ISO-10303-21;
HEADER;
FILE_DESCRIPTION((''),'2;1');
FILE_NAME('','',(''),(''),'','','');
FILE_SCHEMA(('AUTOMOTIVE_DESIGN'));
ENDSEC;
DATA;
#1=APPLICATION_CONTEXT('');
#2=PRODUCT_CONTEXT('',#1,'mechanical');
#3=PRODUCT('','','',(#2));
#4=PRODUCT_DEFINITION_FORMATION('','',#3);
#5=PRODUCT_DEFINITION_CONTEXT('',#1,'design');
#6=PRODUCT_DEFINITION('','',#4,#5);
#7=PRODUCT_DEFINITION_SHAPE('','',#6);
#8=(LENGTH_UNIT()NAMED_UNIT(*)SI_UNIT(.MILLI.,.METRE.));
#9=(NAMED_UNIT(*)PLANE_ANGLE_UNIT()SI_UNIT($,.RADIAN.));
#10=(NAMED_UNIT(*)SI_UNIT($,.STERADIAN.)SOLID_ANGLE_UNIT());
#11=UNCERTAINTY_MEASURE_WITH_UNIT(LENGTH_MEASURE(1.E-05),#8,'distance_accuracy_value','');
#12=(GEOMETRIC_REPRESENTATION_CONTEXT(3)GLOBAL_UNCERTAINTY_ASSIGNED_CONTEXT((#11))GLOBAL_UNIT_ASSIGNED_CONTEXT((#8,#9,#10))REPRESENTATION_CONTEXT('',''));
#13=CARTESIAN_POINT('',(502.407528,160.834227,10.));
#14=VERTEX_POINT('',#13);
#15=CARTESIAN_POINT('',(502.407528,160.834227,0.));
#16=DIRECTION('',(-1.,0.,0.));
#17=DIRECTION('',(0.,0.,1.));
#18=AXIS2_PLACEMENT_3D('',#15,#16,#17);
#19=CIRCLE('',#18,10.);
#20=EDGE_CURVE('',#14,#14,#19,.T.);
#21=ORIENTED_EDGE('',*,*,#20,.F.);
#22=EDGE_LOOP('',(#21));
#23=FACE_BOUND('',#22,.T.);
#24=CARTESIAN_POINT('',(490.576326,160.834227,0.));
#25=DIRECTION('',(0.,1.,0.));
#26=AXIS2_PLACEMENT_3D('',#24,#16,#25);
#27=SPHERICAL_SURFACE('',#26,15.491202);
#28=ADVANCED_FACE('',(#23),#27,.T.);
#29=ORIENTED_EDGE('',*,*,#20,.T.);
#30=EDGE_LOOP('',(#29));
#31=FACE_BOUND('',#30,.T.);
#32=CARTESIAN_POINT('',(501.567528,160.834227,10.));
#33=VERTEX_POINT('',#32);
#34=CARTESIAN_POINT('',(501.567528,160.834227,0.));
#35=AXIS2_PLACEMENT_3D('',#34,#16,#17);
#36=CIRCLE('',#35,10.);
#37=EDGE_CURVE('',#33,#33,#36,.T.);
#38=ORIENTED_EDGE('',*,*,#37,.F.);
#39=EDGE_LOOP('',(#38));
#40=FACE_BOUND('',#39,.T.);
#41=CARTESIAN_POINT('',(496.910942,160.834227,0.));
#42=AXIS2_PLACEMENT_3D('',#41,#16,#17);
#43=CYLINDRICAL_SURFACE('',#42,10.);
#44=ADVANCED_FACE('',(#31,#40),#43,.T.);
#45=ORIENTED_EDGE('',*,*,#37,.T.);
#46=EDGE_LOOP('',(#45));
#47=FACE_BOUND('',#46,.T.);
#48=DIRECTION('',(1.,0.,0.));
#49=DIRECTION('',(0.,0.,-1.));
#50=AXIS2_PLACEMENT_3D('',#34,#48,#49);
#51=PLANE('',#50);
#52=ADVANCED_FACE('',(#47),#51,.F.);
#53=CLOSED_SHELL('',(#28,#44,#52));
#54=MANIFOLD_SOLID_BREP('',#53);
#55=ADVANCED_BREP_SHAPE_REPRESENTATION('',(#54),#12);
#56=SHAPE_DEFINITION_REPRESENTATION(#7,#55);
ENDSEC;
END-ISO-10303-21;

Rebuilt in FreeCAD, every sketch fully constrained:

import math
import FreeCAD as App
import Part
import Sketcher
from FreeCAD import Vector
Q = App.Units.Quantity

doc = App.newDocument("Part")
params = doc.addObject("Spreadsheet::Sheet", "Params")
for row, (alias, value) in enumerate([
    ("sketch1_height", "10 mm"),
    ("sketch1_width", "4.5 mm"),
    ("sketch1_width2", "0.84 mm"),
    ("revolution_angle", "360 deg"),
], start=1):
    params.set(f"A{row}", alias)
    params.set(f"B{row}", "=" + value)
    params.setAlias(f"B{row}", alias)

body = doc.addObject("PartDesign::Body", "Body")

sketch1 = body.newObject("Sketcher::SketchObject", "Sketch")
sketch1.AttachmentSupport = (doc.getObject("XY_Plane"), [""])
sketch1.MapMode = "FlatFace"
sketch1.addGeometry([
    Part.LineSegment(Vector(501.567528, 170.834227, 0), Vector(501.567528, 160.834227, 0)),
    Part.LineSegment(Vector(501.567528, 160.834227, 0), Vector(506.067528, 160.834227, 0)),
    Part.ArcOfCircle(Part.Circle(Vector(490.576326, 160.834227, 0), Vector(0, 0, 1), 15.491202), math.radians(0), math.radians(40.205252)),
    Part.LineSegment(Vector(502.407528, 170.834227, 0), Vector(501.567528, 170.834227, 0)),
], False)
sketch1.addGeometry(Part.LineSegment(Vector(490.576326, 160.834227, 0), Vector(506.067528, 160.834227, 0)), True)
sketch1.addConstraint([
    Sketcher.Constraint("Coincident", 0, 2, 1, 1),
    Sketcher.Constraint("Coincident", 1, 2, 2, 1),
    Sketcher.Constraint("Coincident", 2, 2, 3, 1),
    Sketcher.Constraint("Coincident", 3, 2, 0, 1),
    Sketcher.Constraint("Vertical", 0),
    Sketcher.Constraint("Horizontal", 1),
    Sketcher.Constraint("Horizontal", 3),
    Sketcher.Constraint("Horizontal", 4),
    Sketcher.Constraint("Coincident", 4, 1, 2, 3),
    Sketcher.Constraint("Coincident", 4, 2, 1, 2),
    Sketcher.Constraint("DistanceY", 0, 2, 0, 1, Q("10 mm")),
    Sketcher.Constraint("DistanceX", 1, 1, 1, 2, Q("4.5 mm")),
    Sketcher.Constraint("DistanceX", 3, 2, 3, 1, Q("0.84 mm")),
    Sketcher.Constraint("DistanceX", -1, 1, 2, 3, Q("490.576326 mm")),
    Sketcher.Constraint("DistanceY", -1, 1, 2, 3, Q("160.834227 mm")),
])
sketch1.setExpression("Constraints[10]", "Params.sketch1_height")
sketch1.setExpression("Constraints[11]", "Params.sketch1_width")
sketch1.setExpression("Constraints[12]", "Params.sketch1_width2")
revolution = body.newObject("PartDesign::Revolution", "Revolution")
revolution.Profile = sketch1
revolution.ReferenceAxis = (sketch1, ["Axis0"])
revolution.setExpression("Angle", "Params.revolution_angle")

doc.recompute()
